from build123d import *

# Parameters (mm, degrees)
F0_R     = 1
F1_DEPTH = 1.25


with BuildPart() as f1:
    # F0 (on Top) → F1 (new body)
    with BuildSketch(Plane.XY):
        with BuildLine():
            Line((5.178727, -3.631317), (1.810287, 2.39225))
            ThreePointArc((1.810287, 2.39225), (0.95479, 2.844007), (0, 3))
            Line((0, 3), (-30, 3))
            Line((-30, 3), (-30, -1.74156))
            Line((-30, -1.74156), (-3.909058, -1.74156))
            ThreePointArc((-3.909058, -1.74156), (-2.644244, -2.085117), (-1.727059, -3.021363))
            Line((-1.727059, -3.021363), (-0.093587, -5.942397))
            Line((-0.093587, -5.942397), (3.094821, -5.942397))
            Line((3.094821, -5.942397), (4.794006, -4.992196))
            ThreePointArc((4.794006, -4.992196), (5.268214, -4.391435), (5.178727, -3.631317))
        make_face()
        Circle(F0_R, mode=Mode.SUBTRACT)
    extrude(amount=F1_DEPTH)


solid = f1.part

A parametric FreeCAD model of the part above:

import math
import FreeCAD as App
import Part
import Sketcher
from FreeCAD import Vector
Q = App.Units.Quantity

doc = App.newDocument("Part")
body = doc.addObject("PartDesign::Body", "Body")

sketch1 = doc.addObject("Sketcher::SketchObject", "Sketch")
body.addObject(sketch1)
sketch1.AttachmentSupport = (doc.XY_Plane, [""])
sketch1.MapMode = "FlatFace"
sketch1.addGeometry(Part.LineSegment(Vector(5.2, -3.6, 0), Vector(1.8, 2.4, 0)), False)
sketch1.addGeometry(Part.ArcOfCircle(Part.Circle(Vector(0, 0, 0), Vector(0, 0, 1), 3), math.radians(53), math.radians(90)), False)
sketch1.addGeometry(Part.LineSegment(Vector(0, 3, 0), Vector(-30, 3, 0)), False)
sketch1.addGeometry(Part.LineSegment(Vector(-30, 3, 0), Vector(-30, -1.7, 0)), False)
sketch1.addGeometry(Part.LineSegment(Vector(-30, -1.7, 0), Vector(-3.9, -1.7, 0)), False)
sketch1.addGeometry(Part.ArcOfCircle(Part.Circle(Vector(-3.9, -4.2, 0), Vector(0, 0, 1), 2.5), math.radians(29), math.radians(90)), False)
sketch1.addGeometry(Part.LineSegment(Vector(-1.7, -3, 0), Vector(-0.1, -5.9, 0)), False)
sketch1.addGeometry(Part.LineSegment(Vector(-0.1, -5.9, 0), Vector(3.1, -5.9, 0)), False)
sketch1.addGeometry(Part.LineSegment(Vector(3.1, -5.9, 0), Vector(4.8, -5, 0)), False)
sketch1.addGeometry(Part.ArcOfCircle(Part.Circle(Vector(4.3, -4.1, 0), Vector(0, 0, 1), 1), math.radians(-61), math.radians(29)), False)
sketch1.addGeometry(Part.Circle(Vector(0, 0, 0), Vector(0, 0, 1), 1), False)
sketch1.addConstraint(Sketcher.Constraint("Coincident", 0, 2, 1, 1))
sketch1.addConstraint(Sketcher.Constraint("Tangent", 1, 2, 2, 1))
sketch1.addConstraint(Sketcher.Constraint("Coincident", 2, 2, 3, 1))
sketch1.addConstraint(Sketcher.Constraint("Coincident", 3, 2, 4, 1))
sketch1.addConstraint(Sketcher.Constraint("Tangent", 4, 2, 5, 2))
sketch1.addConstraint(Sketcher.Constraint("Tangent", 5, 1, 6, 1))
sketch1.addConstraint(Sketcher.Constraint("Coincident", 6, 2, 7, 1))
sketch1.addConstraint(Sketcher.Constraint("Coincident", 7, 2, 8, 1))
sketch1.addConstraint(Sketcher.Constraint("Tangent", 8, 2, 9, 1))
sketch1.addConstraint(Sketcher.Constraint("Tangent", 9, 2, 0, 1))
sketch1.addConstraint(Sketcher.Constraint("Horizontal", 2))
sketch1.addConstraint(Sketcher.Constraint("Vertical", 3))
sketch1.addConstraint(Sketcher.Constraint("Horizontal", 4))
sketch1.addConstraint(Sketcher.Constraint("Horizontal", 7))
sketch1.addConstraint(Sketcher.Constraint("Coincident", 1, 3, -1, 1))
sketch1.addConstraint(Sketcher.Constraint("Coincident", 10, 3, -1, 1))
sketch1.addConstraint(Sketcher.Constraint("Equal", 9, 10))
sketch1.addConstraint(Sketcher.Constraint("Parallel", 0, 6))
sketch1.addConstraint(Sketcher.Constraint("Perpendicular", 6, 8))
sketch1.addConstraint(Sketcher.Constraint("Diameter", 10, Q("2 mm")))
sketch1.addConstraint(Sketcher.Constraint("Radius", 1, Q("2.999999 mm")))
sketch1.addConstraint(Sketcher.Constraint("Radius", 5, Q("2.499999 mm")))
sketch1.addConstraint(Sketcher.Constraint("DistanceX", 2, 2, 2, 1, Q("30 mm")))
sketch1.addConstraint(Sketcher.Constraint("DistanceX", 5, 3, 5, 1, Q("2.181998 mm")))
sketch1.addConstraint(Sketcher.Constraint("DistanceY", 6, 2, 9, 3, Q("1.823001 mm")))
sketch1.addConstraint(Sketcher.Constraint("DistanceX", 4, 1, 4, 2, Q("26.090942 mm")))
sketch1.addConstraint(Sketcher.Constraint("DistanceY", 3, 2, 3, 1, Q("4.74156 mm")))
sketch1.addConstraint(Sketcher.Constraint("Distance", 0, Q("6.901431 mm")))
sketch1.addConstraint(Sketcher.Constraint("Distance", 6, Q("3.34674 mm")))
pad1 = doc.addObject("PartDesign::Pad", "Pad")
body.addObject(pad1)
pad1.Profile = sketch1
pad1.Length = 1.25

doc.recompute()
